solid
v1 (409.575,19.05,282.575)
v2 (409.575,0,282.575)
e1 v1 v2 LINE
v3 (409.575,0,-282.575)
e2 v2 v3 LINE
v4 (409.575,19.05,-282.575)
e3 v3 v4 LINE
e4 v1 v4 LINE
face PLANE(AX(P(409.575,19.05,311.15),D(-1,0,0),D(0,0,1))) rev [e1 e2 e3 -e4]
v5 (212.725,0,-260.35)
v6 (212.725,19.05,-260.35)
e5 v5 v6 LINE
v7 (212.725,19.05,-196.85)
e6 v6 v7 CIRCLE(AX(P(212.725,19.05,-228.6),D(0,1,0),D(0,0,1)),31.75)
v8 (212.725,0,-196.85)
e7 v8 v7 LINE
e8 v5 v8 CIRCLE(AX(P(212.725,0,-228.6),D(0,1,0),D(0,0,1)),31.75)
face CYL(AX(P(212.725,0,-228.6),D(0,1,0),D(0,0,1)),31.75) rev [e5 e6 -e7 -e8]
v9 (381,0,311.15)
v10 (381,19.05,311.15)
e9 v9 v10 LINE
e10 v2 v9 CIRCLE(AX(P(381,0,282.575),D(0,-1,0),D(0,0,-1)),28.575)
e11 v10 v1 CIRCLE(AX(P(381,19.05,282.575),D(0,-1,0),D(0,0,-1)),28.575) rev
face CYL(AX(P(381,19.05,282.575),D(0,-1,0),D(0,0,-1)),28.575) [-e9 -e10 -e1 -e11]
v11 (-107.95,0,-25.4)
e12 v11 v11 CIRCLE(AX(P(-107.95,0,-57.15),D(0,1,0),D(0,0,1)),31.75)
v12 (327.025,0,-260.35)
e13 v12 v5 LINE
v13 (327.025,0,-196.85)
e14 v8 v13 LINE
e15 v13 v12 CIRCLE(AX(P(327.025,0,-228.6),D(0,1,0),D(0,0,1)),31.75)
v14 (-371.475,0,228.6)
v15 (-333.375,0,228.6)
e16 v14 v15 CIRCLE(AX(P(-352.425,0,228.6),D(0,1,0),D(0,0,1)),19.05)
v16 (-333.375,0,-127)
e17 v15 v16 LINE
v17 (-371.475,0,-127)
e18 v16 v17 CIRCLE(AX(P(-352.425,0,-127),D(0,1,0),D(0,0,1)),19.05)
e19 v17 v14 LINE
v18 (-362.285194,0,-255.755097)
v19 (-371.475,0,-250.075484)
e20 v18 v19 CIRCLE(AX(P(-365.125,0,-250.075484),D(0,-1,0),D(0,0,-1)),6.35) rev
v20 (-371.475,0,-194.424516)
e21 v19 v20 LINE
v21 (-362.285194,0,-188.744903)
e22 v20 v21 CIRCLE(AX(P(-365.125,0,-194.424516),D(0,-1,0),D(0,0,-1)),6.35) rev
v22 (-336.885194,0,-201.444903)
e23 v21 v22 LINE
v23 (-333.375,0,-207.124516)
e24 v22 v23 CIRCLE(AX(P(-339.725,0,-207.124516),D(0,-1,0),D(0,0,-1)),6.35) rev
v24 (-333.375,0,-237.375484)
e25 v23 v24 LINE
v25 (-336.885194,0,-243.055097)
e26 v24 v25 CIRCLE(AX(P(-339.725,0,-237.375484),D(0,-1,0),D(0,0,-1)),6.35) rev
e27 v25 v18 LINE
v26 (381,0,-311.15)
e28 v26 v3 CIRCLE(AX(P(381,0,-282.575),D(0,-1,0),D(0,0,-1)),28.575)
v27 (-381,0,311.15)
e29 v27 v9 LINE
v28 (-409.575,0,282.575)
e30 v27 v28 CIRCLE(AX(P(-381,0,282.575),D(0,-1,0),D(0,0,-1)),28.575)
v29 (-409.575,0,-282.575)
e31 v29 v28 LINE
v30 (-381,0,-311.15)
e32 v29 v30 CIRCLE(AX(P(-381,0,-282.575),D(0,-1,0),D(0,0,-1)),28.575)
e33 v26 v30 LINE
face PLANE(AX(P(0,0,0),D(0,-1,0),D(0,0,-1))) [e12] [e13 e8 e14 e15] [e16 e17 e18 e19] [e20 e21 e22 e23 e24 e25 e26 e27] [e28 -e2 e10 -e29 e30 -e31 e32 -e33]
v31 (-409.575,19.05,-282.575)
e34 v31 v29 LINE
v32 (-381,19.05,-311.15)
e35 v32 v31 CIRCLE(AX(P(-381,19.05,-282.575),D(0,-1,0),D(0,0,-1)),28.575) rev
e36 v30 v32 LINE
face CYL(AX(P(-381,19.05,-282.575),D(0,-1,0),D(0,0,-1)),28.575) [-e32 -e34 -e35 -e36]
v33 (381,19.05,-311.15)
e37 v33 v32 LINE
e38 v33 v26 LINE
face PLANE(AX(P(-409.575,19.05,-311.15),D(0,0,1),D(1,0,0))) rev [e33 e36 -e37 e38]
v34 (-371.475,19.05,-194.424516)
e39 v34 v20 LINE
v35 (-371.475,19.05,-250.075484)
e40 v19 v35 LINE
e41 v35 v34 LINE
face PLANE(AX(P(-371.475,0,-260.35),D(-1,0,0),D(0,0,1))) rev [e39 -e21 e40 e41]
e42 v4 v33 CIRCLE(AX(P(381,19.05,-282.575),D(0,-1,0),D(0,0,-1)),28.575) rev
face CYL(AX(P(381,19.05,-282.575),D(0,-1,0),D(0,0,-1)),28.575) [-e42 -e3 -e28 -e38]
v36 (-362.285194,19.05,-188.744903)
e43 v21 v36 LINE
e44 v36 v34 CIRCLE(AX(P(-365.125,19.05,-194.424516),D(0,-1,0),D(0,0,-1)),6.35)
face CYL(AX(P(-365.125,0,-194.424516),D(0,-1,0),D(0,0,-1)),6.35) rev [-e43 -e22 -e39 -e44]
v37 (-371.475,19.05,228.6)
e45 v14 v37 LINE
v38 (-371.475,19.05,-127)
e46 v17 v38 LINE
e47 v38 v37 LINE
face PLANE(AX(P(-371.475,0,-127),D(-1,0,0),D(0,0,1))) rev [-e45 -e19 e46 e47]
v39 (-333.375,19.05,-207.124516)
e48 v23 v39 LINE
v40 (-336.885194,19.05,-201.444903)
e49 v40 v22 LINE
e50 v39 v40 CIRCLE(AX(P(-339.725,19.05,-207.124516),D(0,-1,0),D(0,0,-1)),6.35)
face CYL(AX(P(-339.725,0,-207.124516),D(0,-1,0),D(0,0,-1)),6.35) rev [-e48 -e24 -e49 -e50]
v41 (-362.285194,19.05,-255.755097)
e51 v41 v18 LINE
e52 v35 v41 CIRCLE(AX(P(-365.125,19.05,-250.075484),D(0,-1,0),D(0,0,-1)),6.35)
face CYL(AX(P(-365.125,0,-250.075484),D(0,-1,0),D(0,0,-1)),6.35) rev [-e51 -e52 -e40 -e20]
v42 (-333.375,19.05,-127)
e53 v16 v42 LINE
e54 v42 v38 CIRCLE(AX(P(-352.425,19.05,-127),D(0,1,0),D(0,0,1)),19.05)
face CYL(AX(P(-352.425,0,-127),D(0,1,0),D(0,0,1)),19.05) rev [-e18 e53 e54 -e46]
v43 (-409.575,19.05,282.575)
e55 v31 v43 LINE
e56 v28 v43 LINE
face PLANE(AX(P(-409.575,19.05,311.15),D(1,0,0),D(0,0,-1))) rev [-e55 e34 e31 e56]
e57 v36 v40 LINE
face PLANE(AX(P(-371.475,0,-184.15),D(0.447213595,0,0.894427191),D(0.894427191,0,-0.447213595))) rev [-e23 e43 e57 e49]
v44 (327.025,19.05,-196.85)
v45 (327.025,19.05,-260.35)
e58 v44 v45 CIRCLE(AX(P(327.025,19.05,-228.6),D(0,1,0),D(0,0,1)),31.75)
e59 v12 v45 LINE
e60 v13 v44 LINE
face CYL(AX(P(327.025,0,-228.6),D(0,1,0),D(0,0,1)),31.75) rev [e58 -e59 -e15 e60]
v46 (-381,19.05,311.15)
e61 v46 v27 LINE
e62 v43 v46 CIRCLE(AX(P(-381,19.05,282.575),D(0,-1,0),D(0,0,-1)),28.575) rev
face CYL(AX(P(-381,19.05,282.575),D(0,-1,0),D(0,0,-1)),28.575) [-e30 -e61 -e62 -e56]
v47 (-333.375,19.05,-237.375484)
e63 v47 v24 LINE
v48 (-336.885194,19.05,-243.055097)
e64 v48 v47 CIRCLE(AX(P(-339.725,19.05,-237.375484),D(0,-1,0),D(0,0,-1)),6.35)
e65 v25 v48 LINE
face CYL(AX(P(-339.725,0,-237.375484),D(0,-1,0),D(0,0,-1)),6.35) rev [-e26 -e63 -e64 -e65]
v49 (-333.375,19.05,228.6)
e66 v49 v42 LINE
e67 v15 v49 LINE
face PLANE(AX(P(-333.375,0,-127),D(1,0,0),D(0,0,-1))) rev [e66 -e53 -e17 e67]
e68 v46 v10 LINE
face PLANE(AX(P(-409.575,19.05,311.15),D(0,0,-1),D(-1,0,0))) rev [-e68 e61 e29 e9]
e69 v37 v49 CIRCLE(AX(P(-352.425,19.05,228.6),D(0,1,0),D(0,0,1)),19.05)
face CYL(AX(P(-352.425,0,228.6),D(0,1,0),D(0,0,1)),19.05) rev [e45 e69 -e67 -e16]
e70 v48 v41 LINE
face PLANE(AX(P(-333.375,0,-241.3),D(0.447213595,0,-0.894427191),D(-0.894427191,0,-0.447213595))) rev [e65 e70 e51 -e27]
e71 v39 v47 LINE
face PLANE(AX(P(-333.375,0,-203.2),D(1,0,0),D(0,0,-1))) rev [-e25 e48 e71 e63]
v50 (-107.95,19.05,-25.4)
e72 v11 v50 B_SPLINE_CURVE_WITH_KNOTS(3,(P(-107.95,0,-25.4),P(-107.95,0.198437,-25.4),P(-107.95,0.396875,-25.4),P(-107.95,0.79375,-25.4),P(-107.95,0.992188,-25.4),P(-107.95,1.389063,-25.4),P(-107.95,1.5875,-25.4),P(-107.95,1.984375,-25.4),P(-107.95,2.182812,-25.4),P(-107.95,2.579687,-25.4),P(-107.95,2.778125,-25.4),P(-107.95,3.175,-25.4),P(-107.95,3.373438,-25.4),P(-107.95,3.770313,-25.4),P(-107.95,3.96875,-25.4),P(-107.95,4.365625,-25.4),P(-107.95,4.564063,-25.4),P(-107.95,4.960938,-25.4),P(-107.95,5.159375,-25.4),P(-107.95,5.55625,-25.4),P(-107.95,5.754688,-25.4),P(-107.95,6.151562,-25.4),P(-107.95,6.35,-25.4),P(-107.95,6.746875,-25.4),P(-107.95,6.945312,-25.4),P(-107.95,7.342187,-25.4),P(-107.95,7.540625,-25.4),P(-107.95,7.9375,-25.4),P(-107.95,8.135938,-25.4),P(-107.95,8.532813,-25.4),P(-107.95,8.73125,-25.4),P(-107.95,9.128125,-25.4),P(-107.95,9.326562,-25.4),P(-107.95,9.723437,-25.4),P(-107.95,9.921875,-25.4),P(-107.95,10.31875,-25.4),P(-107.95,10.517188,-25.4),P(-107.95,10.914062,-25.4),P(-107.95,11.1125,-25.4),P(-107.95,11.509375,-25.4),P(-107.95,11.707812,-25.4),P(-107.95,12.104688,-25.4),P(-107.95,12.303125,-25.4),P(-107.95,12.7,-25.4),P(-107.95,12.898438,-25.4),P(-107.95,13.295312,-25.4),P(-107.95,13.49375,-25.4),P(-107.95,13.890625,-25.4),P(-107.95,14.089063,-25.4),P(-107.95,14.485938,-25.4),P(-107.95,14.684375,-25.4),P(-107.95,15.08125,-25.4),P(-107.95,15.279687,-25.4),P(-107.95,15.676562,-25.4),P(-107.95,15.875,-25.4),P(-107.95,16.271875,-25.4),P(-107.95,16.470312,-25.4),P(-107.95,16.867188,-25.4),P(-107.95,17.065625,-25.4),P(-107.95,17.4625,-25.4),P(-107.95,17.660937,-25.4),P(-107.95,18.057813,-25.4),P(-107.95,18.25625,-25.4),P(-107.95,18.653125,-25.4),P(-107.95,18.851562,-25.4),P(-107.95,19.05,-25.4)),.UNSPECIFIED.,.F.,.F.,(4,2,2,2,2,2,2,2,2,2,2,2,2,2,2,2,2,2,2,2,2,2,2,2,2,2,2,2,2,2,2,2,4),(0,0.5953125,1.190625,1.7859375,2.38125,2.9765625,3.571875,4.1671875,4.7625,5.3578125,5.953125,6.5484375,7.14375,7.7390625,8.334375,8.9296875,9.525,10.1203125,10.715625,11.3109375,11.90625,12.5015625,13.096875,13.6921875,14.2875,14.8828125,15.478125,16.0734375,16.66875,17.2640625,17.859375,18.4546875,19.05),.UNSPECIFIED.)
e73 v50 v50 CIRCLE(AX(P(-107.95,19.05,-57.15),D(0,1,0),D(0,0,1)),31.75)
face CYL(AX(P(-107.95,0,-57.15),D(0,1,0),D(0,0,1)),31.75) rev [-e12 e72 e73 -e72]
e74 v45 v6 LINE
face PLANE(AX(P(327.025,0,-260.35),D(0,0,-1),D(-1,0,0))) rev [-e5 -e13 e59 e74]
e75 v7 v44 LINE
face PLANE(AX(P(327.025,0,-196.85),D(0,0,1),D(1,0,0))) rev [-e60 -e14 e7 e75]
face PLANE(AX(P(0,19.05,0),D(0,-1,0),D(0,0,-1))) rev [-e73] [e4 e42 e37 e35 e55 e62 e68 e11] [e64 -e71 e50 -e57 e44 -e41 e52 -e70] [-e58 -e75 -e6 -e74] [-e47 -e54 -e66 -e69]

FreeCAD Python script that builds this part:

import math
import FreeCAD as App
import Part
import Sketcher

V = App.Vector
Q = App.Units.Quantity


def edges_at(feature, points):
    """Names of the edges that pass closest to the given points."""
    edges = feature.Shape.Edges
    near = lambda p: min(range(len(edges)), key=lambda i: edges[i].distToShape(Part.Vertex(*p))[0])
    return sorted({f"Edge{near(p) + 1}" for p in points})


def add_polygon(sketch, points):
    """Adds a closed chain of lines whose ends are joined by coincident constraints."""
    first, n = sketch.GeometryCount, len(points)
    for a, b in zip(points, points[1:] + points[:1]):
        sketch.addGeometry(Part.LineSegment(App.Vector(*a, 0), App.Vector(*b, 0)), False)
    for i in range(n):
        sketch.addConstraint(Sketcher.Constraint("Coincident", first + i, 2, first + (i + 1) % n, 1))

doc = App.newDocument("Part")
body = doc.addObject("PartDesign::Body", "Body")

sketch1 = doc.addObject("Sketcher::SketchObject", "Sketch")
body.addObject(sketch1)
sketch1.AttachmentSupport = (doc.XZ_Plane, [""])
sketch1.MapMode = "FlatFace"
add_polygon(sketch1, [(-410, -311), (-410, 311), (410, 311), (410, -311)])
sketch1.addConstraint(Sketcher.Constraint("Vertical", 0))
sketch1.addConstraint(Sketcher.Constraint("Horizontal", 1))
sketch1.addConstraint(Sketcher.Constraint("Vertical", 2))
sketch1.addConstraint(Sketcher.Constraint("Horizontal", 3))
sketch1.addConstraint(Sketcher.Constraint("Symmetric", 0, 2, 2, 2, -1, 1))
sketch1.addConstraint(Sketcher.Constraint("DistanceY", 0, 1, 0, 2, Q("24.5 in")))
sketch1.addConstraint(Sketcher.Constraint("DistanceX", 1, 1, 1, 2, Q("32.25 in")))
pad1 = doc.addObject("PartDesign::Pad", "Pad")
body.addObject(pad1)
pad1.Profile = sketch1
pad1.Length = Q("0.75 in")
pad1.Reversed = True
doc.recompute()

fillet = doc.addObject("PartDesign::Fillet", "Fillet")
body.addObject(fillet)
fillet.Base = (pad1, edges_at(pad1, [
    (409.575, 9.525, 311.15),
    (-409.575, 9.525, 311.15),
    (-409.575, 9.525, -311.15),
    (409.575, 9.525, -311.15),
]))
fillet.Radius = Q("1.125 in")

sketch2 = doc.addObject("Sketcher::SketchObject", "Sketch001")
body.addObject(sketch2)
sketch2.AttachmentSupport = (doc.XZ_Plane, [""])
sketch2.MapMode = "FlatFace"
sketch2.AttachmentOffset = App.Placement(V(0, 0, -0.75 * 25.4), App.Rotation())
sketch2.addGeometry(Part.Circle(V(-108, -57, 0), V(0, 0, 1), 32), False)
sketch2.addConstraint(Sketcher.Constraint("Diameter", 0, Q("2.5 in")))
sketch2.addConstraint(Sketcher.Constraint("DistanceX", 0, 3, -1, 1, Q("4.25 in")))
sketch2.addConstraint(Sketcher.Constraint("DistanceY", 0, 3, -1, 1, Q("2.25 in")))
pocket1 = doc.addObject("PartDesign::Pocket", "Pocket")
body.addObject(pocket1)
pocket1.Profile = sketch2
pocket1.Type = "ThroughAll"
pocket1.Reversed = True

sketch3 = doc.addObject("Sketcher::SketchObject", "Sketch002")
body.addObject(sketch3)
sketch3.AttachmentSupport = (doc.XZ_Plane, [""])
sketch3.MapMode = "FlatFace"
sketch3.AttachmentOffset = App.Placement(V(0, 0, -0.75 * 25.4), App.Rotation())
sketch3.addGeometry(Part.LineSegment(V(-333, 229, 0), V(-333, -127, 0)), False)
sketch3.addGeometry(Part.ArcOfCircle(Part.Circle(V(-352, -127, 0), V(0, 0, 1), 19), math.radians(180), math.radians(360)), False)
sketch3.addGeometry(Part.LineSegment(V(-371, -127, 0), V(-371, 229, 0)), False)
sketch3.addGeometry(Part.ArcOfCircle(Part.Circle(V(-352, 229, 0), V(0, 0, 1), 19), math.radians(0), math.radians(180)), False)
sketch3.addConstraint(Sketcher.Constraint("Tangent", 0, 2, 1, 2))
sketch3.addConstraint(Sketcher.Constraint("Tangent", 1, 1, 2, 1))
sketch3.addConstraint(Sketcher.Constraint("Tangent", 2, 2, 3, 2))
sketch3.addConstraint(Sketcher.Constraint("Tangent", 3, 1, 0, 1))
sketch3.addConstraint(Sketcher.Constraint("Vertical", 0))
sketch3.addConstraint(Sketcher.Constraint("Vertical", 2))
sketch3.addConstraint(Sketcher.Constraint("DistanceY", 0, 2, 0, 1, Q("14 in")))
sketch3.addConstraint(Sketcher.Constraint("Radius", 1, Q("0.75 in")))
sketch3.addConstraint(Sketcher.Constraint("DistanceY", 1, 3, -1, 1, Q("5 in")))
sketch3.addConstraint(Sketcher.Constraint("DistanceX", 1, 3, -1, 1, Q("13.875 in")))
pocket2 = doc.addObject("PartDesign::Pocket", "Pocket001")
body.addObject(pocket2)
pocket2.Profile = sketch3
pocket2.Type = "ThroughAll"
pocket2.Reversed = True

sketch4 = doc.addObject("Sketcher::SketchObject", "Sketch003")
body.addObject(sketch4)
sketch4.AttachmentSupport = (doc.XZ_Plane, [""])
sketch4.MapMode = "FlatFace"
sketch4.AttachmentOffset = App.Placement(V(0, 0, -0.75 * 25.4), App.Rotation())
add_polygon(sketch4, [(-371, -260), (-371, -184), (-333, -203), (-333, -241)])
sketch4.addConstraint(Sketcher.Constraint("Vertical", 0))
sketch4.addConstraint(Sketcher.Constraint("Vertical", 2))
sketch4.addConstraint(Sketcher.Constraint("Equal", 1, 3))
sketch4.addConstraint(Sketcher.Constraint("DistanceY", 0, 1, 0, 2, Q("3 in")))
sketch4.addConstraint(Sketcher.Constraint("DistanceY", 2, 2, 2, 1, Q("1.5 in")))
sketch4.addConstraint(Sketcher.Constraint("DistanceY", 1, 2, -1, 1, Q("8 in")))
sketch4.addConstraint(Sketcher.Constraint("DistanceX", 0, 2, 1, 2, Q("1.5 in")))
sketch4.addConstraint(Sketcher.Constraint("DistanceX", 0, 2, -1, 1, Q("14.625 in")))
pocket3 = doc.addObject("PartDesign::Pocket", "Pocket002")
body.addObject(pocket3)
pocket3.Profile = sketch4
pocket3.Type = "ThroughAll"
pocket3.Reversed = True
doc.recompute()

fillet2 = doc.addObject("PartDesign::Fillet", "Fillet001")
body.addObject(fillet2)
fillet2.Base = (pocket3, edges_at(pocket3, [
    (-371.475, 9.525, -260.35),
    (-333.375, 9.525, -241.3),
    (-333.375, 9.525, -203.2),
    (-371.475, 9.525, -184.15),
]))
fillet2.Radius = Q("0.25 in")

sketch5 = doc.addObject("Sketcher::SketchObject", "Sketch004")
body.addObject(sketch5)
sketch5.AttachmentSupport = (doc.XZ_Plane, [""])
sketch5.MapMode = "FlatFace"
sketch5.AttachmentOffset = App.Placement(V(0, 0, -0.75 * 25.4), App.Rotation())
sketch5.addGeometry(Part.LineSegment(V(213, -197, 0), V(327, -197, 0)), False)
sketch5.addGeometry(Part.ArcOfCircle(Part.Circle(V(327, -229, 0), V(0, 0, 1), 32), math.radians(-90), math.radians(90)), False)
sketch5.addGeometry(Part.LineSegment(V(327, -260, 0), V(213, -260, 0)), False)
sketch5.addGeometry(Part.ArcOfCircle(Part.Circle(V(213, -229, 0), V(0, 0, 1), 32), math.radians(90), math.radians(270)), False)
sketch5.addConstraint(Sketcher.Constraint("Tangent", 0, 2, 1, 2))
sketch5.addConstraint(Sketcher.Constraint("Tangent", 1, 1, 2, 1))
sketch5.addConstraint(Sketcher.Constraint("Tangent", 2, 2, 3, 2))
sketch5.addConstraint(Sketcher.Constraint("Tangent", 3, 1, 0, 1))
sketch5.addConstraint(Sketcher.Constraint("Horizontal", 0))
sketch5.addConstraint(Sketcher.Constraint("Horizontal", 2))
sketch5.addConstraint(Sketcher.Constraint("Radius", 1, Q("1.25 in")))
sketch5.addConstraint(Sketcher.Constraint("DistanceX", 0, 1, 0, 2, Q("4.5 in")))
sketch5.addConstraint(Sketcher.Constraint("DistanceY", 1, 3, -1, 1, Q("9 in")))
sketch5.addConstraint(Sketcher.Constraint("DistanceX", -1, 1, 1, 3, Q("12.875 in")))
pocket4 = doc.addObject("PartDesign::Pocket", "Pocket003")
body.addObject(pocket4)
pocket4.Profile = sketch5
pocket4.Type = "ThroughAll"
pocket4.Reversed = True

doc.recompute()
